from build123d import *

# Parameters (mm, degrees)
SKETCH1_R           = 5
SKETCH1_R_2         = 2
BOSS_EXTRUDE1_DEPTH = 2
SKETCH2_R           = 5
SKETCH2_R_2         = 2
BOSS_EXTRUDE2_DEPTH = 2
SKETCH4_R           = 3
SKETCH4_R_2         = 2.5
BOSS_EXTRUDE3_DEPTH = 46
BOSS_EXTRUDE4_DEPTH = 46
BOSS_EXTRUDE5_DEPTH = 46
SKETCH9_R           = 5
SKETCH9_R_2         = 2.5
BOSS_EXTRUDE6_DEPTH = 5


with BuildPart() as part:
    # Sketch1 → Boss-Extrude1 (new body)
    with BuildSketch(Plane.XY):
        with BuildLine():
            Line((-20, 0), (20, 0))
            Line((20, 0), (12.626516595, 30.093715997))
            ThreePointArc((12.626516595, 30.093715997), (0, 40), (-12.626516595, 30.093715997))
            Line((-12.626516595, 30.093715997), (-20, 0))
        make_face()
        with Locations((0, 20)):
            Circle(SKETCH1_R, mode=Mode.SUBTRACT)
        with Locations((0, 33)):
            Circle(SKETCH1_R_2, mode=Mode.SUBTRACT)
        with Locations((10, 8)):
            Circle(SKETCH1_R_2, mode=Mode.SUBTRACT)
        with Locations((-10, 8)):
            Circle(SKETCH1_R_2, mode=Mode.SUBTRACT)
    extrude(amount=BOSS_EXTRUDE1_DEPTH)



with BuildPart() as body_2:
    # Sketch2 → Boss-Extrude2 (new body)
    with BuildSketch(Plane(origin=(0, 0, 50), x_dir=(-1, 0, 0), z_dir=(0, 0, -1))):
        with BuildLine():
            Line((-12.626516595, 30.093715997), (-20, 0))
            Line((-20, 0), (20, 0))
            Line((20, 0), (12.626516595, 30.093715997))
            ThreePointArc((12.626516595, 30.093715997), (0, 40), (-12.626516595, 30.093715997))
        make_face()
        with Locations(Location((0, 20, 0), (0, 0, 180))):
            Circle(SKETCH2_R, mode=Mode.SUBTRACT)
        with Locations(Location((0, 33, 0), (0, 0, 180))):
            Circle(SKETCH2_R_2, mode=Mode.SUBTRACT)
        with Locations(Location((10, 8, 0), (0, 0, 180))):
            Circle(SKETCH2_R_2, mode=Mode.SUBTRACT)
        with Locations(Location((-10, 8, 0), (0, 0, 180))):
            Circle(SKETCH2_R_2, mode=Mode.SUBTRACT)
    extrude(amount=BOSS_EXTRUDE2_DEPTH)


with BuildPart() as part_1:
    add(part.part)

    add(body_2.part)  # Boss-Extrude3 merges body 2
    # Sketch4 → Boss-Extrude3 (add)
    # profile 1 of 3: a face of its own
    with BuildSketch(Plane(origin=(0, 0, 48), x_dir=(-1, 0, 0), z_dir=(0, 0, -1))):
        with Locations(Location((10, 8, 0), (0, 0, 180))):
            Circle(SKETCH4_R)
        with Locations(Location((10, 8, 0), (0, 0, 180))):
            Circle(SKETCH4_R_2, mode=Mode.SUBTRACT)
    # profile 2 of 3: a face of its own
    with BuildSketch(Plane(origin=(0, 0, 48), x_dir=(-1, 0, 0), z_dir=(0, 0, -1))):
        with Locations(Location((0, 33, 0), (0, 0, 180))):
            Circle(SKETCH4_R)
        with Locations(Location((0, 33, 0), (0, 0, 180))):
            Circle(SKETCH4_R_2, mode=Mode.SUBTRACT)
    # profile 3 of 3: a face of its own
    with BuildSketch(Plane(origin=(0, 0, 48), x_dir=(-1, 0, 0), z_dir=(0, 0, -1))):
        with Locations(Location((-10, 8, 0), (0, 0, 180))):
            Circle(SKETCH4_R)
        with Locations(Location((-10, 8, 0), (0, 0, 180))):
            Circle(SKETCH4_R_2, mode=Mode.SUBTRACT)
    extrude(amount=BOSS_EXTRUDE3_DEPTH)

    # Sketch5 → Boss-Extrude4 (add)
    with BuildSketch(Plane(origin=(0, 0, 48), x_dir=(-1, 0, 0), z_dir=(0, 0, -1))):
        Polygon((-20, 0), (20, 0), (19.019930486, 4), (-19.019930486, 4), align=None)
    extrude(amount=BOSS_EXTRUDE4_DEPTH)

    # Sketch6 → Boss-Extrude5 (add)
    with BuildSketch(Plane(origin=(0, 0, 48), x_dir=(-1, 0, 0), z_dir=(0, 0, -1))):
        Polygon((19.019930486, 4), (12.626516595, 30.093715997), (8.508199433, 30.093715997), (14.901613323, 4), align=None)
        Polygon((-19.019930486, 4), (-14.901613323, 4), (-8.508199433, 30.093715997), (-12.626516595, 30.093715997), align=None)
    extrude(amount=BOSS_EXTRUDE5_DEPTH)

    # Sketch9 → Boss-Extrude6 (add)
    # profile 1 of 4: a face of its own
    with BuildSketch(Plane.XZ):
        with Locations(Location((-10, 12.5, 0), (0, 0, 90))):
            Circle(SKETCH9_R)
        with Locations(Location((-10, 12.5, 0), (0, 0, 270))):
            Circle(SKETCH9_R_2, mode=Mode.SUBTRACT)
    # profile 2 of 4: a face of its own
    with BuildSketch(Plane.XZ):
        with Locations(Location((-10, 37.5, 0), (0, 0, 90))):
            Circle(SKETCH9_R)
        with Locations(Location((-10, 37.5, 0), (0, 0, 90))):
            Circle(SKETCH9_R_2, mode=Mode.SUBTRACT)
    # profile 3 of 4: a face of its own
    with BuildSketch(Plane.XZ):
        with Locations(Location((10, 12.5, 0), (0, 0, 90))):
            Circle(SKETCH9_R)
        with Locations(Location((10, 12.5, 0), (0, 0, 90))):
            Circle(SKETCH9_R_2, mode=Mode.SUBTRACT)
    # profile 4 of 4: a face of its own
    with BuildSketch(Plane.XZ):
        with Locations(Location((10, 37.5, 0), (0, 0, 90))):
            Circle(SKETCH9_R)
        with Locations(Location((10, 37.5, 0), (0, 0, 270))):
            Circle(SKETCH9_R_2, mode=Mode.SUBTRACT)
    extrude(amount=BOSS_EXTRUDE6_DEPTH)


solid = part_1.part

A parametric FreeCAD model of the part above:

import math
import FreeCAD as App
import Part
import Sketcher
from FreeCAD import Vector


def add_polygon(sketch, points):
    """Adds a closed chain of lines whose ends are joined by coincident constraints."""
    first, n = sketch.GeometryCount, len(points)
    for a, b in zip(points, points[1:] + points[:1]):
        sketch.addGeometry(Part.LineSegment(App.Vector(*a, 0), App.Vector(*b, 0)), False)
    for i in range(n):
        sketch.addConstraint(Sketcher.Constraint("Coincident", first + i, 2, first + (i + 1) % n, 1))

doc = App.newDocument("Part")
body = doc.addObject("PartDesign::Body", "Body")

# Sketch on XY plane
sketch1 = body.newObject("Sketcher::SketchObject", "Sketch")
sketch1.AttachmentSupport = (doc.getObject("XY_Plane"), [""])
sketch1.MapMode = "FlatFace"
sketch1.addGeometry(Part.LineSegment(Vector(-20, 0, 0), Vector(20, 0, 0)), False)
sketch1.addGeometry(Part.LineSegment(Vector(20, 0, 0), Vector(12.6, 30.1, 0)), False)
sketch1.addGeometry(Part.ArcOfCircle(Part.Circle(Vector(0, 27, 0), Vector(0, 0, 1), 13), math.radians(14), math.radians(166)), False)
sketch1.addGeometry(Part.LineSegment(Vector(-12.6, 30.1, 0), Vector(-20, 0, 0)), False)
sketch1.addGeometry(Part.Circle(Vector(-10, 8, 0), Vector(0, 0, 1), 2), False)
sketch1.addGeometry(Part.Circle(Vector(10, 8, 0), Vector(0, 0, 1), 2), False)
sketch1.addGeometry(Part.Circle(Vector(0, 20, 0), Vector(0, 0, 1), 5), False)
sketch1.addGeometry(Part.Circle(Vector(0, 33, 0), Vector(0, 0, 1), 2), False)
sketch1.addConstraint(Sketcher.Constraint("Coincident", 0, 2, 1, 1))
sketch1.addConstraint(Sketcher.Constraint("Tangent", 1, 2, 2, 1))
sketch1.addConstraint(Sketcher.Constraint("Tangent", 2, 2, 3, 1))
sketch1.addConstraint(Sketcher.Constraint("Coincident", 3, 2, 0, 1))
sketch1.addConstraint(Sketcher.Constraint("Horizontal", 0))
sketch1.addConstraint(Sketcher.Constraint("Equal", 4, 5))
sketch1.addConstraint(Sketcher.Constraint("Equal", 5, 7))
sketch1.addConstraint(Sketcher.Constraint("Symmetric", 0, 2, 3, 2, -1, 1))
sketch1.addConstraint(Sketcher.Constraint("Symmetric", 4, 3, 5, 3, -2))
sketch1.addConstraint(Sketcher.Constraint("PointOnObject", 2, 3, -2))
sketch1.addConstraint(Sketcher.Constraint("PointOnObject", 6, 3, -2))
sketch1.addConstraint(Sketcher.Constraint("PointOnObject", 7, 3, -2))
sketch1.addConstraint(Sketcher.Constraint("Diameter", 4, 4.0))
sketch1.addConstraint(Sketcher.Constraint("Diameter", 6, 10.0))
sketch1.addConstraint(Sketcher.Constraint("Radius", 2, 13.0))
sketch1.addConstraint(Sketcher.Constraint("DistanceX", 0, 1, 0, 2, 40.0))
sketch1.addConstraint(Sketcher.Constraint("DistanceY", -1, 1, 2, 3, 27.0))
sketch1.addConstraint(Sketcher.Constraint("DistanceX", 4, 3, -1, 1, 10.0))
sketch1.addConstraint(Sketcher.Constraint("DistanceY", -1, 1, 4, 3, 8.0))
sketch1.addConstraint(Sketcher.Constraint("DistanceY", -1, 1, 6, 3, 20.0))
sketch1.addConstraint(Sketcher.Constraint("DistanceY", -1, 1, 7, 3, 33.0))
pad1 = body.newObject("PartDesign::Pad", "Pad")
pad1.Profile = sketch1
pad1.Length = 2
body2 = doc.addObject("PartDesign::Body", "Body001")

# Sketch on XY plane
sketch2 = body2.newObject("Sketcher::SketchObject", "Sketch001")
sketch2.AttachmentSupport = (doc.getObject("XY_Plane001"), [""])
sketch2.MapMode = "FlatFace"
sketch2.AttachmentOffset = App.Placement(Vector(0, 0, 50), App.Rotation())
sketch2.addGeometry(Part.LineSegment(Vector(12.6, 30.1, 0), Vector(20, 0, 0)), False)
sketch2.addGeometry(Part.LineSegment(Vector(20, 0, 0), Vector(-20, 0, 0)), False)
sketch2.addGeometry(Part.LineSegment(Vector(-20, 0, 0), Vector(-12.6, 30.1, 0)), False)
sketch2.addGeometry(Part.ArcOfCircle(Part.Circle(Vector(0, 27, 0), Vector(0, 0, 1), 13), math.radians(14), math.radians(166)), False)
sketch2.addGeometry(Part.Circle(Vector(10, 8, 0), Vector(0, 0, 1), 2), False)
sketch2.addGeometry(Part.Circle(Vector(-10, 8, 0), Vector(0, 0, 1), 2), False)
sketch2.addGeometry(Part.Circle(Vector(0, 20, 0), Vector(0, 0, 1), 5), False)
sketch2.addGeometry(Part.Circle(Vector(0, 33, 0), Vector(0, 0, 1), 2), False)
sketch2.addConstraint(Sketcher.Constraint("Coincident", 0, 2, 1, 1))
sketch2.addConstraint(Sketcher.Constraint("Coincident", 1, 2, 2, 1))
sketch2.addConstraint(Sketcher.Constraint("Tangent", 2, 2, 3, 2))
sketch2.addConstraint(Sketcher.Constraint("Tangent", 3, 1, 0, 1))
sketch2.addConstraint(Sketcher.Constraint("Horizontal", 1))
sketch2.addConstraint(Sketcher.Constraint("Equal", 4, 5))
sketch2.addConstraint(Sketcher.Constraint("Equal", 5, 7))
sketch2.addConstraint(Sketcher.Constraint("Symmetric", 0, 2, 1, 2, -1, 1))
sketch2.addConstraint(Sketcher.Constraint("Symmetric", 4, 3, 5, 3, -2))
sketch2.addConstraint(Sketcher.Constraint("PointOnObject", 3, 3, -2))
sketch2.addConstraint(Sketcher.Constraint("PointOnObject", 6, 3, -2))
sketch2.addConstraint(Sketcher.Constraint("PointOnObject", 7, 3, -2))
sketch2.addConstraint(Sketcher.Constraint("Diameter", 4, 4.0))
sketch2.addConstraint(Sketcher.Constraint("Diameter", 6, 10.0))
sketch2.addConstraint(Sketcher.Constraint("Radius", 3, 13.0))
sketch2.addConstraint(Sketcher.Constraint("DistanceX", 1, 2, 1, 1, 40.0))
sketch2.addConstraint(Sketcher.Constraint("DistanceY", -1, 1, 3, 3, 27.0))
sketch2.addConstraint(Sketcher.Constraint("DistanceX", -1, 1, 4, 3, 10.0))
sketch2.addConstraint(Sketcher.Constraint("DistanceY", -1, 1, 4, 3, 8.0))
sketch2.addConstraint(Sketcher.Constraint("DistanceY", -1, 1, 6, 3, 20.0))
sketch2.addConstraint(Sketcher.Constraint("DistanceY", -1, 1, 7, 3, 33.0))
pad2 = body2.newObject("PartDesign::Pad", "Pad001")
pad2.Profile = sketch2
pad2.Length = 2
pad2.Reversed = True
body.AllowCompound = True
doc.recompute()

boolean = body.newObject("PartDesign::Boolean", "Boolean")
boolean.Type = "Fuse"
boolean.addObjects([body2])

# Sketch on XY plane
sketch3 = body.newObject("Sketcher::SketchObject", "Sketch002")
sketch3.AttachmentSupport = (doc.getObject("XY_Plane"), [""])
sketch3.MapMode = "FlatFace"
sketch3.AttachmentOffset = App.Placement(Vector(0, 0, 48), App.Rotation())
sketch3.addGeometry(Part.Circle(Vector(-10, 8, 0), Vector(0, 0, 1), 3), False)
sketch3.addGeometry(Part.Circle(Vector(-10, 8, 0), Vector(0, 0, 1), 2.5), False)
sketch3.addGeometry(Part.Circle(Vector(0, 33, 0), Vector(0, 0, 1), 3), False)
sketch3.addGeometry(Part.Circle(Vector(0, 33, 0), Vector(0, 0, 1), 2.5), False)
sketch3.addGeometry(Part.Circle(Vector(10, 8, 0), Vector(0, 0, 1), 3), False)
sketch3.addGeometry(Part.Circle(Vector(10, 8, 0), Vector(0, 0, 1), 2.5), False)
sketch3.addConstraint(Sketcher.Constraint("Coincident", 1, 3, 0, 3))
sketch3.addConstraint(Sketcher.Constraint("Coincident", 3, 3, 2, 3))
sketch3.addConstraint(Sketcher.Constraint("Coincident", 5, 3, 4, 3))
sketch3.addConstraint(Sketcher.Constraint("Equal", 0, 2))
sketch3.addConstraint(Sketcher.Constraint("Equal", 1, 3))
sketch3.addConstraint(Sketcher.Constraint("Equal", 2, 4))
sketch3.addConstraint(Sketcher.Constraint("Equal", 3, 5))
sketch3.addConstraint(Sketcher.Constraint("Symmetric", 0, 3, 4, 3, -2))
sketch3.addConstraint(Sketcher.Constraint("PointOnObject", 2, 3, -2))
sketch3.addConstraint(Sketcher.Constraint("Diameter", 0, 6.0))
sketch3.addConstraint(Sketcher.Constraint("Diameter", 1, 5.0))
sketch3.addConstraint(Sketcher.Constraint("DistanceX", 0, 3, -1, 1, 10.0))
sketch3.addConstraint(Sketcher.Constraint("DistanceY", -1, 1, 0, 3, 8.0))
sketch3.addConstraint(Sketcher.Constraint("DistanceY", -1, 1, 2, 3, 33.0))
pad3 = body.newObject("PartDesign::Pad", "Pad002")
pad3.Profile = sketch3
pad3.Length = 46
pad3.Reversed = True

# Sketch on XY plane
sketch4 = body.newObject("Sketcher::SketchObject", "Sketch003")
sketch4.AttachmentSupport = (doc.getObject("XY_Plane"), [""])
sketch4.MapMode = "FlatFace"
sketch4.AttachmentOffset = App.Placement(Vector(0, 0, 48), App.Rotation())
add_polygon(sketch4, [(20, 0), (-20, 0), (-19, 4), (19, 4)])  # lines 0-3
sketch4.addConstraint(Sketcher.Constraint("Horizontal", 0))
sketch4.addConstraint(Sketcher.Constraint("Horizontal", 2))
sketch4.addConstraint(Sketcher.Constraint("Symmetric", 0, 2, 3, 2, -1, 1))
sketch4.addConstraint(Sketcher.Constraint("Equal", 1, 3))
sketch4.addConstraint(Sketcher.Constraint("DistanceX", 0, 2, 0, 1, 40.0))
sketch4.addConstraint(Sketcher.Constraint("DistanceY", -1, 1, 1, 2, 4.0))
sketch4.addConstraint(Sketcher.Constraint("DistanceX", 2, 1, 2, 2, 38.039861))
pad4 = body.newObject("PartDesign::Pad", "Pad003")
pad4.Profile = sketch4
pad4.Length = 46
pad4.Reversed = True

# Sketch on XY plane
sketch5 = body.newObject("Sketcher::SketchObject", "Sketch004")
sketch5.AttachmentSupport = (doc.getObject("XY_Plane"), [""])
sketch5.MapMode = "FlatFace"
sketch5.AttachmentOffset = App.Placement(Vector(0, 0, 48), App.Rotation())
add_polygon(sketch5, [(-19, 4), (-12.6, 30.1), (-8.5, 30.1), (-14.9, 4)])  # lines 0-3
add_polygon(sketch5, [(19, 4), (14.9, 4), (8.5, 30.1), (12.6, 30.1)])  # lines 4-7
sketch5.addConstraint(Sketcher.Constraint("Horizontal", 1))
sketch5.addConstraint(Sketcher.Constraint("Horizontal", 3))
sketch5.addConstraint(Sketcher.Constraint("Horizontal", 4))
sketch5.addConstraint(Sketcher.Constraint("Horizontal", 6))
sketch5.addConstraint(Sketcher.Constraint("Symmetric", 2, 2, 4, 2, -2))
sketch5.addConstraint(Sketcher.Constraint("Symmetric", 1, 2, 5, 2, -2))
sketch5.addConstraint(Sketcher.Constraint("Parallel", 0, 2))
sketch5.addConstraint(Sketcher.Constraint("Parallel", 5, 7))
sketch5.addConstraint(Sketcher.Constraint("Equal", 3, 4))
sketch5.addConstraint(Sketcher.Constraint("DistanceY", -1, 1, 2, 2, 4.0))
sketch5.addConstraint(Sketcher.Constraint("DistanceX", 1, 2, -1, 1, 8.508199))
sketch5.addConstraint(Sketcher.Constraint("Distance", 0, 26.86555))
sketch5.addConstraint(Sketcher.Constraint("DistanceX", 1, 1, 1, 2, 4.118317))
sketch5.addConstraint(Sketcher.Constraint("DistanceX", 3, 2, -1, 1, 19.01993))
pad5 = body.newObject("PartDesign::Pad", "Pad004")
pad5.Profile = sketch5
pad5.Length = 46
pad5.Reversed = True

# Sketch on XZ plane
sketch6 = body.newObject("Sketcher::SketchObject", "Sketch005")
sketch6.AttachmentSupport = (doc.getObject("XZ_Plane"), [""])
sketch6.MapMode = "FlatFace"
sketch6.addGeometry(Part.Circle(Vector(-10, 12.5, 0), Vector(0, 0, 1), 5), False)
sketch6.addGeometry(Part.Circle(Vector(-10, 12.5, 0), Vector(0, 0, 1), 2.5), False)
sketch6.addGeometry(Part.Circle(Vector(-10, 37.5, 0), Vector(0, 0, 1), 5), False)
sketch6.addGeometry(Part.Circle(Vector(-10, 37.5, 0), Vector(0, 0, 1), 2.5), False)
sketch6.addGeometry(Part.Circle(Vector(10, 12.5, 0), Vector(0, 0, 1), 5), False)
sketch6.addGeometry(Part.Circle(Vector(10, 12.5, 0), Vector(0, 0, 1), 2.5), False)
sketch6.addGeometry(Part.Circle(Vector(10, 37.5, 0), Vector(0, 0, 1), 5), False)
sketch6.addGeometry(Part.Circle(Vector(10, 37.5, 0), Vector(0, 0, 1), 2.5), False)
sketch6.addConstraint(Sketcher.Constraint("Coincident", 1, 3, 0, 3))
sketch6.addConstraint(Sketcher.Constraint("Coincident", 3, 3, 2, 3))
sketch6.addConstraint(Sketcher.Constraint("Coincident", 5, 3, 4, 3))
sketch6.addConstraint(Sketcher.Constraint("Coincident", 7, 3, 6, 3))
sketch6.addConstraint(Sketcher.Constraint("Equal", 0, 2))
sketch6.addConstraint(Sketcher.Constraint("Equal", 1, 3))
sketch6.addConstraint(Sketcher.Constraint("Equal", 2, 4))
sketch6.addConstraint(Sketcher.Constraint("Equal", 3, 5))
sketch6.addConstraint(Sketcher.Constraint("Equal", 4, 6))
sketch6.addConstraint(Sketcher.Constraint("Equal", 5, 7))
sketch6.addConstraint(Sketcher.Constraint("Symmetric", 0, 3, 4, 3, -2))
sketch6.addConstraint(Sketcher.Constraint("Symmetric", 2, 3, 6, 3, -2))
sketch6.addConstraint(Sketcher.Constraint("Vertical", 1, 3, 2, 3))
sketch6.addConstraint(Sketcher.Constraint("Diameter", 0, 10.0))
sketch6.addConstraint(Sketcher.Constraint("Diameter", 1, 5.0))
sketch6.addConstraint(Sketcher.Constraint("DistanceX", 0, 3, -1, 1, 10.0))
sketch6.addConstraint(Sketcher.Constraint("DistanceY", 0, 3, 2, 3, 25.0))
sketch6.addConstraint(Sketcher.Constraint("DistanceY", -1, 1, 0, 3, 12.5))
pad6 = body.newObject("PartDesign::Pad", "Pad005")
pad6.Profile = sketch6
pad6.Length = 5

doc.recompute()
